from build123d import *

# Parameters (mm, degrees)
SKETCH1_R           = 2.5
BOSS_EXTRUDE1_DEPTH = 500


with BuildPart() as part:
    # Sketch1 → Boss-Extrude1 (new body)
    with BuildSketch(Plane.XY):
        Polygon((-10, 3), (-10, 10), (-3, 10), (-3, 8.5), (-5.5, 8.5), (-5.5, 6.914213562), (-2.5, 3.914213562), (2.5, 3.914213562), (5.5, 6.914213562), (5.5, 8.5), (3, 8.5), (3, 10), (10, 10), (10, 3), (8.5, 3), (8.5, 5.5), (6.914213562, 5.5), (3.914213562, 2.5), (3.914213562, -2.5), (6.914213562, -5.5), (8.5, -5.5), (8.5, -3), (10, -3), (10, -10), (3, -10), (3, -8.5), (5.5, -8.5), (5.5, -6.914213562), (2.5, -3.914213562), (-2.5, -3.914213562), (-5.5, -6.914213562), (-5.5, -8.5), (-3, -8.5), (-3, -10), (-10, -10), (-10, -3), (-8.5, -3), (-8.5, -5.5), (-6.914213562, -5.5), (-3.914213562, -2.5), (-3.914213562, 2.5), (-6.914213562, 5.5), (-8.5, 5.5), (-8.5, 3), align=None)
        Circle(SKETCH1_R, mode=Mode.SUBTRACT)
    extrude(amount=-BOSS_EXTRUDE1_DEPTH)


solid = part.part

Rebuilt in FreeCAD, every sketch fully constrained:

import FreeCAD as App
import Part
import Sketcher
from FreeCAD import Vector

doc = App.newDocument("Part")
params = doc.addObject("Spreadsheet::Sheet", "Params")
for row, (alias, value) in enumerate([
    ("sketch1_diameter", "5 mm"),
    ("sketch1_width", "7 mm"),
    ("sketch1_width2", "5 mm"),
    ("sketch1_width3", "1.5 mm"),
    ("sketch1_width4", "2.5 mm"),
    ("pad1_length", "500 mm"),
], start=1):
    params.set(f"A{row}", alias)
    params.set(f"B{row}", "=" + value)
    params.setAlias(f"B{row}", alias)

body = doc.addObject("PartDesign::Body", "Body")

# Sketch on XY plane
sketch1 = doc.addObject("Sketcher::SketchObject", "Sketch")
body.addObject(sketch1)
sketch1.AttachmentSupport = (doc.XY_Plane, [""])
sketch1.MapMode = "FlatFace"
sketch1.addGeometry([
    Part.LineSegment(Vector(-10, 10, 0), Vector(-10, 3, 0)),  # 0
    Part.LineSegment(Vector(-10, 3, 0), Vector(-8.5, 3, 0)),  # 1
    Part.LineSegment(Vector(-8.5, 3, 0), Vector(-8.5, 5.5, 0)),  # 2
    Part.LineSegment(Vector(-8.5, 5.5, 0), Vector(-6.9, 5.5, 0)),  # 3
    Part.LineSegment(Vector(-6.9, 5.5, 0), Vector(-3.9, 2.5, 0)),  # 4
    Part.LineSegment(Vector(-3.9, 2.5, 0), Vector(-3.9, -2.5, 0)),  # 5
    Part.LineSegment(Vector(-3.9, -2.5, 0), Vector(-6.9, -5.5, 0)),  # 6
    Part.LineSegment(Vector(-6.9, -5.5, 0), Vector(-8.5, -5.5, 0)),  # 7
    Part.LineSegment(Vector(-8.5, -5.5, 0), Vector(-8.5, -3, 0)),  # 8
    Part.LineSegment(Vector(-8.5, -3, 0), Vector(-10, -3, 0)),  # 9
    Part.LineSegment(Vector(-10, -3, 0), Vector(-10, -10, 0)),  # 10
    Part.LineSegment(Vector(-10, -10, 0), Vector(-3, -10, 0)),  # 11
    Part.LineSegment(Vector(-3, -10, 0), Vector(-3, -8.5, 0)),  # 12
    Part.LineSegment(Vector(-3, -8.5, 0), Vector(-5.5, -8.5, 0)),  # 13
    Part.LineSegment(Vector(-5.5, -8.5, 0), Vector(-5.5, -6.9, 0)),  # 14
    Part.LineSegment(Vector(-5.5, -6.9, 0), Vector(-2.5, -3.9, 0)),  # 15
    Part.LineSegment(Vector(-2.5, -3.9, 0), Vector(2.5, -3.9, 0)),  # 16
    Part.LineSegment(Vector(2.5, -3.9, 0), Vector(5.5, -6.9, 0)),  # 17
    Part.LineSegment(Vector(5.5, -6.9, 0), Vector(5.5, -8.5, 0)),  # 18
    Part.LineSegment(Vector(5.5, -8.5, 0), Vector(3, -8.5, 0)),  # 19
    Part.LineSegment(Vector(3, -8.5, 0), Vector(3, -10, 0)),  # 20
    Part.LineSegment(Vector(3, -10, 0), Vector(10, -10, 0)),  # 21
    Part.LineSegment(Vector(10, -10, 0), Vector(10, -3, 0)),  # 22
    Part.LineSegment(Vector(10, -3, 0), Vector(8.5, -3, 0)),  # 23
    Part.LineSegment(Vector(8.5, -3, 0), Vector(8.5, -5.5, 0)),  # 24
    Part.LineSegment(Vector(8.5, -5.5, 0), Vector(6.9, -5.5, 0)),  # 25
    Part.LineSegment(Vector(6.9, -5.5, 0), Vector(3.9, -2.5, 0)),  # 26
    Part.LineSegment(Vector(3.9, -2.5, 0), Vector(3.9, 2.5, 0)),  # 27
    Part.LineSegment(Vector(3.9, 2.5, 0), Vector(6.9, 5.5, 0)),  # 28
    Part.LineSegment(Vector(6.9, 5.5, 0), Vector(8.5, 5.5, 0)),  # 29
    Part.LineSegment(Vector(8.5, 5.5, 0), Vector(8.5, 3, 0)),  # 30
    Part.LineSegment(Vector(8.5, 3, 0), Vector(10, 3, 0)),  # 31
    Part.LineSegment(Vector(10, 3, 0), Vector(10, 10, 0)),  # 32
    Part.LineSegment(Vector(10, 10, 0), Vector(3, 10, 0)),  # 33
    Part.LineSegment(Vector(3, 10, 0), Vector(3, 8.5, 0)),  # 34
    Part.LineSegment(Vector(3, 8.5, 0), Vector(5.5, 8.5, 0)),  # 35
    Part.LineSegment(Vector(5.5, 8.5, 0), Vector(5.5, 6.9, 0)),  # 36
    Part.LineSegment(Vector(5.5, 6.9, 0), Vector(2.5, 3.9, 0)),  # 37
    Part.LineSegment(Vector(2.5, 3.9, 0), Vector(-2.5, 3.9, 0)),  # 38
    Part.LineSegment(Vector(-2.5, 3.9, 0), Vector(-5.5, 6.9, 0)),  # 39
    Part.LineSegment(Vector(-5.5, 6.9, 0), Vector(-5.5, 8.5, 0)),  # 40
    Part.LineSegment(Vector(-5.5, 8.5, 0), Vector(-3, 8.5, 0)),  # 41
    Part.LineSegment(Vector(-3, 8.5, 0), Vector(-3, 10, 0)),  # 42
    Part.LineSegment(Vector(-3, 10, 0), Vector(-10, 10, 0)),  # 43
    Part.Circle(Vector(0, 0, 0), Vector(0, 0, 1), 2.5),  # 44
], False)
sketch1.addConstraint([
    Sketcher.Constraint("Coincident", 0, 2, 1, 1),
    Sketcher.Constraint("Coincident", 1, 2, 2, 1),
    Sketcher.Constraint("Coincident", 2, 2, 3, 1),
    Sketcher.Constraint("Coincident", 3, 2, 4, 1),
    Sketcher.Constraint("Coincident", 4, 2, 5, 1),
    Sketcher.Constraint("Coincident", 5, 2, 6, 1),
    Sketcher.Constraint("Coincident", 6, 2, 7, 1),
    Sketcher.Constraint("Coincident", 7, 2, 8, 1),
    Sketcher.Constraint("Coincident", 8, 2, 9, 1),
    Sketcher.Constraint("Coincident", 9, 2, 10, 1),
    Sketcher.Constraint("Coincident", 10, 2, 11, 1),
    Sketcher.Constraint("Coincident", 11, 2, 12, 1),
    Sketcher.Constraint("Coincident", 12, 2, 13, 1),
    Sketcher.Constraint("Coincident", 13, 2, 14, 1),
    Sketcher.Constraint("Coincident", 14, 2, 15, 1),
    Sketcher.Constraint("Coincident", 15, 2, 16, 1),
    Sketcher.Constraint("Coincident", 16, 2, 17, 1),
    Sketcher.Constraint("Coincident", 17, 2, 18, 1),
    Sketcher.Constraint("Coincident", 18, 2, 19, 1),
    Sketcher.Constraint("Coincident", 19, 2, 20, 1),
    Sketcher.Constraint("Coincident", 20, 2, 21, 1),
    Sketcher.Constraint("Coincident", 21, 2, 22, 1),
    Sketcher.Constraint("Coincident", 22, 2, 23, 1),
    Sketcher.Constraint("Coincident", 23, 2, 24, 1),
    Sketcher.Constraint("Coincident", 24, 2, 25, 1),
    Sketcher.Constraint("Coincident", 25, 2, 26, 1),
    Sketcher.Constraint("Coincident", 26, 2, 27, 1),
    Sketcher.Constraint("Coincident", 27, 2, 28, 1),
    Sketcher.Constraint("Coincident", 28, 2, 29, 1),
    Sketcher.Constraint("Coincident", 29, 2, 30, 1),
    Sketcher.Constraint("Coincident", 30, 2, 31, 1),
    Sketcher.Constraint("Coincident", 31, 2, 32, 1),
    Sketcher.Constraint("Coincident", 32, 2, 33, 1),
    Sketcher.Constraint("Coincident", 33, 2, 34, 1),
    Sketcher.Constraint("Coincident", 34, 2, 35, 1),
    Sketcher.Constraint("Coincident", 35, 2, 36, 1),
    Sketcher.Constraint("Coincident", 36, 2, 37, 1),
    Sketcher.Constraint("Coincident", 37, 2, 38, 1),
    Sketcher.Constraint("Coincident", 38, 2, 39, 1),
    Sketcher.Constraint("Coincident", 39, 2, 40, 1),
    Sketcher.Constraint("Coincident", 40, 2, 41, 1),
    Sketcher.Constraint("Coincident", 41, 2, 42, 1),
    Sketcher.Constraint("Coincident", 42, 2, 43, 1),
    Sketcher.Constraint("Coincident", 43, 2, 0, 1),
    Sketcher.Constraint("Vertical", 0),
    Sketcher.Constraint("Horizontal", 1),
    Sketcher.Constraint("Vertical", 2),
    Sketcher.Constraint("Horizontal", 3),
    Sketcher.Constraint("Vertical", 5),
    Sketcher.Constraint("Horizontal", 7),
    Sketcher.Constraint("Vertical", 8),
    Sketcher.Constraint("Horizontal", 9),
    Sketcher.Constraint("Vertical", 10),
    Sketcher.Constraint("Horizontal", 11),
    Sketcher.Constraint("Vertical", 12),
    Sketcher.Constraint("Horizontal", 13),
    Sketcher.Constraint("Vertical", 14),
    Sketcher.Constraint("Horizontal", 16),
    Sketcher.Constraint("Vertical", 18),
    Sketcher.Constraint("Horizontal", 19),
    Sketcher.Constraint("Vertical", 20),
    Sketcher.Constraint("Horizontal", 21),
    Sketcher.Constraint("Vertical", 22),
    Sketcher.Constraint("Horizontal", 23),
    Sketcher.Constraint("Vertical", 24),
    Sketcher.Constraint("Horizontal", 25),
    Sketcher.Constraint("Vertical", 27),
    Sketcher.Constraint("Horizontal", 29),
    Sketcher.Constraint("Vertical", 30),
    Sketcher.Constraint("Horizontal", 31),
    Sketcher.Constraint("Vertical", 32),
    Sketcher.Constraint("Horizontal", 33),
    Sketcher.Constraint("Vertical", 34),
    Sketcher.Constraint("Horizontal", 35),
    Sketcher.Constraint("Vertical", 36),
    Sketcher.Constraint("Horizontal", 38),
    Sketcher.Constraint("Vertical", 40),
    Sketcher.Constraint("Horizontal", 41),
    Sketcher.Constraint("Vertical", 42),
    Sketcher.Constraint("Horizontal", 43),
    Sketcher.Constraint("Coincident", 44, 3, -1, 1),
    Sketcher.Constraint("Symmetric", 0, 2, 22, 2, -1, 1),
    Sketcher.Constraint("Symmetric", 2, 2, 24, 2, -1, 1),
    Sketcher.Constraint("Symmetric", 4, 2, 26, 2, -1, 1),
    Sketcher.Constraint("Symmetric", 6, 2, 28, 2, -1, 1),
    Sketcher.Constraint("Symmetric", 8, 2, 30, 2, -1, 1),
    Sketcher.Constraint("Symmetric", 10, 2, 32, 2, -1, 1),
    Sketcher.Constraint("Symmetric", 12, 2, 34, 2, -1, 1),
    Sketcher.Constraint("Symmetric", 14, 2, 36, 2, -1, 1),
    Sketcher.Constraint("Symmetric", 15, 2, 37, 2, -1, 1),
    Sketcher.Constraint("Symmetric", 17, 2, 39, 2, -1, 1),
    Sketcher.Constraint("Symmetric", 19, 2, 41, 2, -1, 1),
    Sketcher.Constraint("Symmetric", 14, 2, 17, 2, -2),
    Sketcher.Constraint("Symmetric", 12, 2, 19, 2, -2),
    Sketcher.Constraint("Symmetric", 10, 2, 21, 2, -2),
    Sketcher.Constraint("Symmetric", 8, 2, 23, 2, -2),
    Sketcher.Constraint("Symmetric", 6, 2, 25, 2, -2),
    Sketcher.Constraint("Perpendicular", 4, 6),
    Sketcher.Constraint("Parallel", 6, 15),
    Sketcher.Constraint("Perpendicular", 15, 17),
    Sketcher.Constraint("Parallel", 17, 26),
    Sketcher.Constraint("Perpendicular", 26, 28),
    Sketcher.Constraint("Perpendicular", 37, 39),
    Sketcher.Constraint("Horizontal", 5, 2, 26, 2),
    Sketcher.Constraint("Horizontal", 33, 2, 42, 2),
    Sketcher.Constraint("Equal", 43, 0),
    Sketcher.Constraint("Equal", 41, 2),
    Sketcher.Constraint("Equal", 38, 5),
    Sketcher.Constraint("Equal", 31, 12),
    Sketcher.Constraint("Equal", 29, 14),
    Sketcher.Constraint("Equal", 6, 15),
    Sketcher.Constraint("Diameter", 44, 5.0),
    Sketcher.Constraint("DistanceX", 11, 1, 11, 2, 7.0),
    Sketcher.Constraint("DistanceX", 16, 1, 16, 2, 5.0),
    Sketcher.Constraint("DistanceX", 1, 1, 1, 2, 1.5),
    Sketcher.Constraint("DistanceX", 13, 2, 13, 1, 2.5),
    Sketcher.Constraint("DistanceX", 0, 2, -1, 1, 10.0),
    Sketcher.Constraint("DistanceX", 3, 1, 3, 2, 1.585786),
])
sketch1.setExpression("Constraints[111]", "Params.sketch1_diameter")
sketch1.setExpression("Constraints[112]", "Params.sketch1_width")
sketch1.setExpression("Constraints[113]", "Params.sketch1_width2")
sketch1.setExpression("Constraints[114]", "Params.sketch1_width3")
sketch1.setExpression("Constraints[115]", "Params.sketch1_width4")
pad1 = doc.addObject("PartDesign::Pad", "Pad")
body.addObject(pad1)
pad1.Profile = sketch1
pad1.setExpression("Length", "Params.pad1_length")
pad1.Reversed = True

doc.recompute()
